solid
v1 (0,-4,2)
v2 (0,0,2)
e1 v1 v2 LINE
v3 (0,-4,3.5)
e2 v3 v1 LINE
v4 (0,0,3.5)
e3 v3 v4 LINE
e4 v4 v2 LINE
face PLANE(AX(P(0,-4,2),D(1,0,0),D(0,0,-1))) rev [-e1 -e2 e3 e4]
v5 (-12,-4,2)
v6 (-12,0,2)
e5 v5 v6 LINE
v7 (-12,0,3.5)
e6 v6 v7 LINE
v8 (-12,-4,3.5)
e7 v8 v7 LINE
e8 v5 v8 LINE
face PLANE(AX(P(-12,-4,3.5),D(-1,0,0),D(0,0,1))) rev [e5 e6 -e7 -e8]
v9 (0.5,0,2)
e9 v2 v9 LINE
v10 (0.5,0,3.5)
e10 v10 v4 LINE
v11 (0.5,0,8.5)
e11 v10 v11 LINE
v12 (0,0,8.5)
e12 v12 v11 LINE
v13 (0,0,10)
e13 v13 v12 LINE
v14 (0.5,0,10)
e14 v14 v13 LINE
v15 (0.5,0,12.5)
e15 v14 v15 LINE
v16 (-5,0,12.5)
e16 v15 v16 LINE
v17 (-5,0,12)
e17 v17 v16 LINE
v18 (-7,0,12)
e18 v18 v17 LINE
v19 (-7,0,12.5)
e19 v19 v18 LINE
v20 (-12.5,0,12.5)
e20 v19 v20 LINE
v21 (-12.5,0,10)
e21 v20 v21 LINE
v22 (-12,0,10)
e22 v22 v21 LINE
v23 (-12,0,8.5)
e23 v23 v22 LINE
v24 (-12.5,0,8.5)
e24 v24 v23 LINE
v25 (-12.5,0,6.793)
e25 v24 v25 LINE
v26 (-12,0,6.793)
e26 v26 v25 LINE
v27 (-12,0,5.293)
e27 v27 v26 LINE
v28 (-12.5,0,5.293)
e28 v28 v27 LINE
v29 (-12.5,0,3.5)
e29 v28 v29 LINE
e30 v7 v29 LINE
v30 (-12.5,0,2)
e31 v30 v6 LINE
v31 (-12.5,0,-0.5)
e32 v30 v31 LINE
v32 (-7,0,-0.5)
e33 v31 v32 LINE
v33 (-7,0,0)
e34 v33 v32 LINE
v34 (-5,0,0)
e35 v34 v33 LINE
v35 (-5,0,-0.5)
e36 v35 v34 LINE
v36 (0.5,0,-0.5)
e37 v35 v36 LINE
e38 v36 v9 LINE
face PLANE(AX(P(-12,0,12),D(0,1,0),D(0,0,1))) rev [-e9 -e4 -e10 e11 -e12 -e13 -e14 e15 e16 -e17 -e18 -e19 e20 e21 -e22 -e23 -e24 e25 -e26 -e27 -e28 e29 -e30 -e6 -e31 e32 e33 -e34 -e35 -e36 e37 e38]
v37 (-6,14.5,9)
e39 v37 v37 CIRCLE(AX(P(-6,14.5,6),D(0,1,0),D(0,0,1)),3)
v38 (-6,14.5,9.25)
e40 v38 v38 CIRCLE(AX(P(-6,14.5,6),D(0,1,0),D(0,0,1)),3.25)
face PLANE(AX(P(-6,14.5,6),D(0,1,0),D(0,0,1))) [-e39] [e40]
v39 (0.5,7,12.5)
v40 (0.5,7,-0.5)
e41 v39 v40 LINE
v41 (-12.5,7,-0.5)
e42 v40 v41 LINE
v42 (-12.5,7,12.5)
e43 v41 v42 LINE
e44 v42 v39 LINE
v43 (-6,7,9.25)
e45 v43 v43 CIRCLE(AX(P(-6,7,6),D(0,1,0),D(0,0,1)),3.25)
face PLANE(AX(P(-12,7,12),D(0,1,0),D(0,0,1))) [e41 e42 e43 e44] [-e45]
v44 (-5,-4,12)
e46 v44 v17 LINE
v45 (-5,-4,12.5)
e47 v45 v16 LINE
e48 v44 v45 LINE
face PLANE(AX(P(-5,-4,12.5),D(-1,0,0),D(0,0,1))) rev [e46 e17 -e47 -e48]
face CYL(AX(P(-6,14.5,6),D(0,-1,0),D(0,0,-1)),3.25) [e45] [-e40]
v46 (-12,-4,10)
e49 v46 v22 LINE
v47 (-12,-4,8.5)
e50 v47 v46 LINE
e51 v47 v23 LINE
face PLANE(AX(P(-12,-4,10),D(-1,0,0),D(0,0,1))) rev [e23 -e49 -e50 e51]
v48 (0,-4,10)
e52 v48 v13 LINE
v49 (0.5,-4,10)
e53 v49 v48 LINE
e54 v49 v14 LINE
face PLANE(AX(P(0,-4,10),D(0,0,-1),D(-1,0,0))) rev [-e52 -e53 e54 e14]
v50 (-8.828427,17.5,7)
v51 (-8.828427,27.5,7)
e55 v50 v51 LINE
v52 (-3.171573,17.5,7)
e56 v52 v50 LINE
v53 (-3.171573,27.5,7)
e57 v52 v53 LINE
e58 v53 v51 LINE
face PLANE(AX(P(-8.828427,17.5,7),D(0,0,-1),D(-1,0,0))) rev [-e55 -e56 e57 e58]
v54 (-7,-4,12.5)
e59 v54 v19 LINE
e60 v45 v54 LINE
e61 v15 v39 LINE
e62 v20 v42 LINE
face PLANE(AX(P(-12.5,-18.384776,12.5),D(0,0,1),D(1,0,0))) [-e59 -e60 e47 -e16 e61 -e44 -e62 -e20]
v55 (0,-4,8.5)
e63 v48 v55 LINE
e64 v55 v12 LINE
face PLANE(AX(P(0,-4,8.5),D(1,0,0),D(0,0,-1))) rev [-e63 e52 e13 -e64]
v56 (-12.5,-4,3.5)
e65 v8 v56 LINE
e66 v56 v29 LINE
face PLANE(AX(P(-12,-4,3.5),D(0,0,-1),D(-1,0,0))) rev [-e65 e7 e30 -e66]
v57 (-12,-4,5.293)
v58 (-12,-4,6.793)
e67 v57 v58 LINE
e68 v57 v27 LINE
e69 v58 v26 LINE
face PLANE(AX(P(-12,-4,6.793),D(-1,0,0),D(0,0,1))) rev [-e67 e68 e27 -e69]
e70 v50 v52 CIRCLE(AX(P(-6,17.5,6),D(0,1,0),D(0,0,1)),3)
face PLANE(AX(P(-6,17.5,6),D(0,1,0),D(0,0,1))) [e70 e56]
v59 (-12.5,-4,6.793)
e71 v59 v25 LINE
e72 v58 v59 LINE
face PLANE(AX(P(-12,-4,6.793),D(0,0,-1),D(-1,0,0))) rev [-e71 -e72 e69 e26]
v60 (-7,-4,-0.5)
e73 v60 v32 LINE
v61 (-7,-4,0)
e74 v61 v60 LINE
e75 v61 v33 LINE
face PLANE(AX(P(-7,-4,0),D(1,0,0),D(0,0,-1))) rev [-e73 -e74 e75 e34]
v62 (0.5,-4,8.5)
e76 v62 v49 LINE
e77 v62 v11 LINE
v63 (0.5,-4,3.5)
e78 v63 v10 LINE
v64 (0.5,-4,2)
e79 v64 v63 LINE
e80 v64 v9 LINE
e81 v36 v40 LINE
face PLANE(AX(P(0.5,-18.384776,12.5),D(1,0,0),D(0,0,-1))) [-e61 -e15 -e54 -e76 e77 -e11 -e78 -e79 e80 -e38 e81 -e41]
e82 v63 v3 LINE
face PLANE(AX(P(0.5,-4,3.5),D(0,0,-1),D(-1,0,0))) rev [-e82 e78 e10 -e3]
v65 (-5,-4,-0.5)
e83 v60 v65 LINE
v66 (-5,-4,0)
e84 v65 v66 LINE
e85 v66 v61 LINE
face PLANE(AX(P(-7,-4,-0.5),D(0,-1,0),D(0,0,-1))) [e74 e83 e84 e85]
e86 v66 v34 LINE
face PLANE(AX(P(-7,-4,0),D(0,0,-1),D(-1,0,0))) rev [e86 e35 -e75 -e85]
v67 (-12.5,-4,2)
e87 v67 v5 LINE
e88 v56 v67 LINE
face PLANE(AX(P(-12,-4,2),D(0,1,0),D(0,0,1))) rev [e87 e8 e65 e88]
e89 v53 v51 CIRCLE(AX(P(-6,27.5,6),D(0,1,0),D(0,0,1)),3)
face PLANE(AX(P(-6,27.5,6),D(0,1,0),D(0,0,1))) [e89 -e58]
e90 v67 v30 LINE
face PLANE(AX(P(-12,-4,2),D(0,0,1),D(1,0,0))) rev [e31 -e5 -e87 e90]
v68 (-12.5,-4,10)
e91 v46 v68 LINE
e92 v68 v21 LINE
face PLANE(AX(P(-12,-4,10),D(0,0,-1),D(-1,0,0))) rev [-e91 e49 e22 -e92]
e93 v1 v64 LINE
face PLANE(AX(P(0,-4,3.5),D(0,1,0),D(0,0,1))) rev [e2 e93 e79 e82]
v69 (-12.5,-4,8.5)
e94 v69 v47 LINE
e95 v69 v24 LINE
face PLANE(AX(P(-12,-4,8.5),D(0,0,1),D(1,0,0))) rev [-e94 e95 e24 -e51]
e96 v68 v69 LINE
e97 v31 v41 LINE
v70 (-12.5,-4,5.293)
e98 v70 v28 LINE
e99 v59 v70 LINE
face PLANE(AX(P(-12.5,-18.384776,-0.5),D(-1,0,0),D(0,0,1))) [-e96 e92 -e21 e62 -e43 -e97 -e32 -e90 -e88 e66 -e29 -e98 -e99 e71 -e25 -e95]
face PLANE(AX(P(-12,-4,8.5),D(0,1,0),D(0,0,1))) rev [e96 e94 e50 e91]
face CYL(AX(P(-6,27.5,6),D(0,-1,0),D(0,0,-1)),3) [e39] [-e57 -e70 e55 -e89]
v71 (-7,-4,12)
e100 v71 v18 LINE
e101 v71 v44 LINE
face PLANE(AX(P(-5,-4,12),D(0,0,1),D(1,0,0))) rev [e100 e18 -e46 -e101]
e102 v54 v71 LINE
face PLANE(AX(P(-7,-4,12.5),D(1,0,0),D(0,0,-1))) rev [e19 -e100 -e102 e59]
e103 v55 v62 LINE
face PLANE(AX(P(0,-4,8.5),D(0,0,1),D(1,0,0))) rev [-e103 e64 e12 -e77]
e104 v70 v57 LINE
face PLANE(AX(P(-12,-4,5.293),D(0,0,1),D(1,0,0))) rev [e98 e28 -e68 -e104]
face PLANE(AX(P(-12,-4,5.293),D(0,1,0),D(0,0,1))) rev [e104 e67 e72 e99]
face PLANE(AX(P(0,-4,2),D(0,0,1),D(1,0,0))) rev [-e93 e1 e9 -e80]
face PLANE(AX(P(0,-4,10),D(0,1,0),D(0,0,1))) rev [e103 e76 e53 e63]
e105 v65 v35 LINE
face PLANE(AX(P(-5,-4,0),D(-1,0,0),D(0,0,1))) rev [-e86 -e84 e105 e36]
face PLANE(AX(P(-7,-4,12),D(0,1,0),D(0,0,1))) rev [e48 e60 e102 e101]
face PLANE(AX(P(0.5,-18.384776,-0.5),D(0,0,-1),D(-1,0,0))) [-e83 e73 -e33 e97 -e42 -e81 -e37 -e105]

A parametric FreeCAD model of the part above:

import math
import FreeCAD as App
import Part
import Sketcher


def add_polygon(sketch, points):
    """Adds a closed chain of lines whose ends are joined by coincident constraints."""
    first, n = sketch.GeometryCount, len(points)
    for a, b in zip(points, points[1:] + points[:1]):
        sketch.addGeometry(Part.LineSegment(App.Vector(*a, 0), App.Vector(*b, 0)), False)
    for i in range(n):
        sketch.addConstraint(Sketcher.Constraint("Coincident", first + i, 2, first + (i + 1) % n, 1))

doc = App.newDocument("Part")
body = doc.addObject("PartDesign::Body", "Body")

# Sketch on XZ plane
sketch1 = body.newObject("Sketcher::SketchObject", "Sketch")
sketch1.AttachmentSupport = (doc.getObject("XZ_Plane"), [""])
sketch1.MapMode = "FlatFace"
add_polygon(sketch1, [(-12, 0), (-12, 12), (0, 12), (0, 0)])  # lines 0-3
sketch1.addConstraint(Sketcher.Constraint("Vertical", 0))
sketch1.addConstraint(Sketcher.Constraint("Horizontal", 1))
sketch1.addConstraint(Sketcher.Constraint("Vertical", 2))
sketch1.addConstraint(Sketcher.Constraint("Horizontal", 3))
sketch1.addConstraint(Sketcher.Constraint("Coincident", 2, 2, -1, 1))
sketch1.addConstraint(Sketcher.Constraint("Equal", 3, 0))
sketch1.addConstraint(Sketcher.Constraint("DistanceX", 1, 1, 1, 2, 12.0))
pad1 = body.newObject("PartDesign::Pad", "Pad")
pad1.Profile = sketch1
pad1.Length = 7
pad1.Reversed = True
body2 = doc.addObject("PartDesign::Body", "Body001")

# Sketch on XZ plane
sketch2 = body2.newObject("Sketcher::SketchObject", "Sketch001")
sketch2.AttachmentSupport = (doc.getObject("XZ_Plane001"), [""])
sketch2.MapMode = "FlatFace"
add_polygon(sketch2, [(-12.5, 10), (-12.5, 8.5), (-12, 8.5), (-12, 10)])  # lines 0-3
sketch2.addConstraint(Sketcher.Constraint("Vertical", 0))
sketch2.addConstraint(Sketcher.Constraint("Horizontal", 1))
sketch2.addConstraint(Sketcher.Constraint("Vertical", 2))
sketch2.addConstraint(Sketcher.Constraint("Horizontal", 3))
sketch2.addConstraint(Sketcher.Constraint("DistanceX", 1, 1, 1, 2, 0.5))
sketch2.addConstraint(Sketcher.Constraint("DistanceY", 0, 2, 0, 1, 1.5))
sketch2.addConstraint(Sketcher.Constraint("DistanceX", 1, 2, -1, 1, 12.0))
sketch2.addConstraint(Sketcher.Constraint("DistanceY", -1, 1, 2, 2, 10.0))
pad2 = body2.newObject("PartDesign::Pad", "Pad001")
pad2.Profile = sketch2
pad2.Length = 4
body3 = doc.addObject("PartDesign::Body", "Body002")

# Sketch on XZ plane
sketch3 = body3.newObject("Sketcher::SketchObject", "Sketch002")
sketch3.AttachmentSupport = (doc.getObject("XZ_Plane002"), [""])
sketch3.MapMode = "FlatFace"
add_polygon(sketch3, [(-7, 0), (-7, -0.5), (-5, -0.5), (-5, 0)])  # lines 0-3
sketch3.addConstraint(Sketcher.Constraint("Vertical", 0))
sketch3.addConstraint(Sketcher.Constraint("Horizontal", 1))
sketch3.addConstraint(Sketcher.Constraint("Vertical", 2))
sketch3.addConstraint(Sketcher.Constraint("Horizontal", 3))
sketch3.addConstraint(Sketcher.Constraint("PointOnObject", 2, 2, -1))
sketch3.addConstraint(Sketcher.Constraint("DistanceX", 1, 1, 1, 2, 2.0))
sketch3.addConstraint(Sketcher.Constraint("DistanceY", 0, 2, 0, 1, 0.5))
sketch3.addConstraint(Sketcher.Constraint("DistanceX", 0, 2, -1, 1, 7.0))
pad3 = body3.newObject("PartDesign::Pad", "Pad002")
pad3.Profile = sketch3
pad3.Length = 4
body4 = doc.addObject("PartDesign::Body", "Body003")

# Sketch on XZ plane
sketch4 = body4.newObject("Sketcher::SketchObject", "Sketch003")
sketch4.AttachmentSupport = (doc.getObject("XZ_Plane003"), [""])
sketch4.MapMode = "FlatFace"
add_polygon(sketch4, [(0, 3.5), (0, 2), (0.5, 2), (0.5, 3.5)])  # lines 0-3
sketch4.addConstraint(Sketcher.Constraint("Vertical", 0))
sketch4.addConstraint(Sketcher.Constraint("Horizontal", 1))
sketch4.addConstraint(Sketcher.Constraint("Vertical", 2))
sketch4.addConstraint(Sketcher.Constraint("Horizontal", 3))
sketch4.addConstraint(Sketcher.Constraint("PointOnObject", 0, 2, -2))
sketch4.addConstraint(Sketcher.Constraint("DistanceX", 1, 1, 1, 2, 0.5))
sketch4.addConstraint(Sketcher.Constraint("DistanceY", 0, 2, 0, 1, 1.5))
sketch4.addConstraint(Sketcher.Constraint("DistanceY", -1, 1, 0, 2, 2.0))
pad4 = body4.newObject("PartDesign::Pad", "Pad003")
pad4.Profile = sketch4
pad4.Length = 4
body5 = doc.addObject("PartDesign::Body", "Body004")

# Sketch on XZ plane
sketch5 = body5.newObject("Sketcher::SketchObject", "Sketch004")
sketch5.AttachmentSupport = (doc.getObject("XZ_Plane004"), [""])
sketch5.MapMode = "FlatFace"
add_polygon(sketch5, [(-7, 12.5), (-7, 12), (-5, 12), (-5, 12.5)])  # lines 0-3
sketch5.addConstraint(Sketcher.Constraint("Vertical", 0))
sketch5.addConstraint(Sketcher.Constraint("Horizontal", 1))
sketch5.addConstraint(Sketcher.Constraint("Vertical", 2))
sketch5.addConstraint(Sketcher.Constraint("Horizontal", 3))
sketch5.addConstraint(Sketcher.Constraint("DistanceX", 1, 1, 1, 2, 2.0))
sketch5.addConstraint(Sketcher.Constraint("DistanceY", 0, 2, 0, 1, 0.5))
sketch5.addConstraint(Sketcher.Constraint("DistanceX", 0, 2, -1, 1, 7.0))
sketch5.addConstraint(Sketcher.Constraint("DistanceY", -1, 1, 0, 2, 12.0))
pad5 = body5.newObject("PartDesign::Pad", "Pad004")
pad5.Profile = sketch5
pad5.Length = 4
body6 = doc.addObject("PartDesign::Body", "Body005")

# Sketch on XZ plane
sketch6 = body6.newObject("Sketcher::SketchObject", "Sketch005")
sketch6.AttachmentSupport = (doc.getObject("XZ_Plane005"), [""])
sketch6.MapMode = "FlatFace"
add_polygon(sketch6, [(-12.5, 6.8), (-12.5, 5.3), (-12, 5.3), (-12, 6.8)])  # lines 0-3
sketch6.addConstraint(Sketcher.Constraint("Vertical", 0))
sketch6.addConstraint(Sketcher.Constraint("Horizontal", 1))
sketch6.addConstraint(Sketcher.Constraint("Vertical", 2))
sketch6.addConstraint(Sketcher.Constraint("Horizontal", 3))
sketch6.addConstraint(Sketcher.Constraint("DistanceX", 1, 1, 1, 2, 0.5))
sketch6.addConstraint(Sketcher.Constraint("DistanceY", 0, 2, 0, 1, 1.5))
sketch6.addConstraint(Sketcher.Constraint("DistanceX", 1, 2, -1, 1, 12.0))
sketch6.addConstraint(Sketcher.Constraint("DistanceY", -1, 1, 0, 2, 5.293))
pad6 = body6.newObject("PartDesign::Pad", "Pad005")
pad6.Profile = sketch6
pad6.Length = 4
body7 = doc.addObject("PartDesign::Body", "Body006")

# Sketch on XZ plane
sketch7 = body7.newObject("Sketcher::SketchObject", "Sketch006")
sketch7.AttachmentSupport = (doc.getObject("XZ_Plane006"), [""])
sketch7.MapMode = "FlatFace"
add_polygon(sketch7, [(-12.5, 3.5), (-12.5, 2), (-12, 2), (-12, 3.5)])  # lines 0-3
sketch7.addConstraint(Sketcher.Constraint("Vertical", 0))
sketch7.addConstraint(Sketcher.Constraint("Horizontal", 1))
sketch7.addConstraint(Sketcher.Constraint("Vertical", 2))
sketch7.addConstraint(Sketcher.Constraint("Horizontal", 3))
sketch7.addConstraint(Sketcher.Constraint("DistanceX", 1, 1, 1, 2, 0.5))
sketch7.addConstraint(Sketcher.Constraint("DistanceY", 0, 2, 0, 1, 1.5))
sketch7.addConstraint(Sketcher.Constraint("DistanceY", -1, 1, 0, 2, 2.0))
sketch7.addConstraint(Sketcher.Constraint("DistanceX", 1, 2, -1, 1, 12.0))
pad7 = body7.newObject("PartDesign::Pad", "Pad006")
pad7.Profile = sketch7
pad7.Length = 4
body8 = doc.addObject("PartDesign::Body", "Body007")

# Sketch on XZ plane
sketch8 = body8.newObject("Sketcher::SketchObject", "Sketch007")
sketch8.AttachmentSupport = (doc.getObject("XZ_Plane007"), [""])
sketch8.MapMode = "FlatFace"
add_polygon(sketch8, [(0, 10), (0, 8.5), (0.5, 8.5), (0.5, 10)])  # lines 0-3
sketch8.addConstraint(Sketcher.Constraint("Vertical", 0))
sketch8.addConstraint(Sketcher.Constraint("Horizontal", 1))
sketch8.addConstraint(Sketcher.Constraint("Vertical", 2))
sketch8.addConstraint(Sketcher.Constraint("Horizontal", 3))
sketch8.addConstraint(Sketcher.Constraint("PointOnObject", 0, 2, -2))
sketch8.addConstraint(Sketcher.Constraint("DistanceX", 1, 1, 1, 2, 0.5))
sketch8.addConstraint(Sketcher.Constraint("DistanceY", 0, 2, 0, 1, 1.5))
sketch8.addConstraint(Sketcher.Constraint("DistanceY", -1, 1, 2, 2, 10.0))
pad8 = body8.newObject("PartDesign::Pad", "Pad007")
pad8.Profile = sketch8
pad8.Length = 4
body.AllowCompound = True
doc.recompute()

boolean = body.newObject("PartDesign::Boolean", "Boolean")
boolean.Type = "Fuse"
boolean.addObjects([body2])
doc.recompute()

boolean2 = body.newObject("PartDesign::Boolean", "Boolean001")
boolean2.Type = "Fuse"
boolean2.addObjects([body3])
doc.recompute()

boolean3 = body.newObject("PartDesign::Boolean", "Boolean002")
boolean3.Type = "Fuse"
boolean3.addObjects([body4])
doc.recompute()

boolean4 = body.newObject("PartDesign::Boolean", "Boolean003")
boolean4.Type = "Fuse"
boolean4.addObjects([body5])
doc.recompute()

boolean5 = body.newObject("PartDesign::Boolean", "Boolean004")
boolean5.Type = "Fuse"
boolean5.addObjects([body6])
doc.recompute()

boolean6 = body.newObject("PartDesign::Boolean", "Boolean005")
boolean6.Type = "Fuse"
boolean6.addObjects([body7])
doc.recompute()

boolean7 = body.newObject("PartDesign::Boolean", "Boolean006")
boolean7.Type = "Fuse"
boolean7.addObjects([body8])

# Sketch on XZ plane
sketch9 = body.newObject("Sketcher::SketchObject", "Sketch008")
sketch9.AttachmentSupport = (doc.getObject("XZ_Plane"), [""])
sketch9.MapMode = "FlatFace"
sketch9.AttachmentOffset = App.Placement(App.Vector(0, 0, -7), App.Rotation())
add_polygon(sketch9, [(-12, 0), (-12, 12), (0, 12), (0, 0)])  # lines 0-3
add_polygon(sketch9, [(0, 12), (-12, 12), (-12, 0), (0, 0)])  # lines 4-7
sketch9.addConstraint(Sketcher.Constraint("Vertical", 0))
sketch9.addConstraint(Sketcher.Constraint("Horizontal", 1))
sketch9.addConstraint(Sketcher.Constraint("Vertical", 2))
sketch9.addConstraint(Sketcher.Constraint("Horizontal", 3))
sketch9.addConstraint(Sketcher.Constraint("Horizontal", 4))
sketch9.addConstraint(Sketcher.Constraint("Vertical", 5))
sketch9.addConstraint(Sketcher.Constraint("Horizontal", 6))
sketch9.addConstraint(Sketcher.Constraint("Vertical", 7))
sketch9.addConstraint(Sketcher.Constraint("Coincident", 6, 2, -1, 1))
sketch9.addConstraint(Sketcher.Constraint("Equal", 3, 0))
sketch9.addConstraint(Sketcher.Constraint("Equal", 6, 5))
sketch9.addConstraint(Sketcher.Constraint("DistanceX", 1, 1, 1, 2, 13.0))
sketch9.addConstraint(Sketcher.Constraint("DistanceX", 4, 2, 4, 1, 12.0))
sketch9.addConstraint(Sketcher.Constraint("DistanceX", 0, 2, -1, 1, 12.5))
sketch9.addConstraint(Sketcher.Constraint("DistanceY", -1, 1, 0, 2, 12.5))
pad9 = body.newObject("PartDesign::Pad", "Pad008")
pad9.Profile = sketch9
pad9.Length = 7

# Sketch on XZ plane
sketch10 = body.newObject("Sketcher::SketchObject", "Sketch009")
sketch10.AttachmentSupport = (doc.getObject("XZ_Plane"), [""])
sketch10.MapMode = "FlatFace"
sketch10.AttachmentOffset = App.Placement(App.Vector(0, 0, -7), App.Rotation())
sketch10.addGeometry(Part.Circle(App.Vector(-6, 6, 0), App.Vector(0, 0, 1), 3.2), False)
sketch10.addConstraint(Sketcher.Constraint("Diameter", 0, 6.5))
sketch10.addConstraint(Sketcher.Constraint("DistanceX", 0, 3, -1, 1, 6.0))
sketch10.addConstraint(Sketcher.Constraint("DistanceY", -1, 1, 0, 3, 6.0))
pad10 = body.newObject("PartDesign::Pad", "Pad009")
pad10.Profile = sketch10
pad10.Length = 7.5
pad10.Reversed = True

# Sketch on XZ plane
sketch11 = body.newObject("Sketcher::SketchObject", "Sketch010")
sketch11.AttachmentSupport = (doc.getObject("XZ_Plane"), [""])
sketch11.MapMode = "FlatFace"
sketch11.AttachmentOffset = App.Placement(App.Vector(0, 0, -14.5), App.Rotation())
sketch11.addGeometry(Part.Circle(App.Vector(-6, 6, 0), App.Vector(0, 0, 1), 3), False)
sketch11.addConstraint(Sketcher.Constraint("Diameter", 0, 6.0))
sketch11.addConstraint(Sketcher.Constraint("DistanceX", 0, 3, -1, 1, 6.0))
sketch11.addConstraint(Sketcher.Constraint("DistanceY", -1, 1, 0, 3, 6.0))
pad11 = body.newObject("PartDesign::Pad", "Pad010")
pad11.Profile = sketch11
pad11.Length = 13
pad11.Reversed = True

# Sketch on XZ plane
sketch12 = body.newObject("Sketcher::SketchObject", "Sketch011")
sketch12.AttachmentSupport = (doc.getObject("XZ_Plane"), [""])
sketch12.MapMode = "FlatFace"
sketch12.AttachmentOffset = App.Placement(App.Vector(0, 0, -17.5), App.Rotation())
sketch12.addGeometry(Part.LineSegment(App.Vector(-3.2, 7, 0), App.Vector(-8.8, 7, 0)), False)
sketch12.addGeometry(Part.ArcOfCircle(Part.Circle(App.Vector(-6, 6, 0), App.Vector(0, 0, 1), 3), math.radians(19), math.radians(161)), False)
sketch12.addConstraint(Sketcher.Constraint("Coincident", 0, 1, 1, 1))
sketch12.addConstraint(Sketcher.Constraint("Coincident", 1, 2, 0, 2))
sketch12.addConstraint(Sketcher.Constraint("Horizontal", 0))
sketch12.addConstraint(Sketcher.Constraint("Radius", 1, 3.0))
sketch12.addConstraint(Sketcher.Constraint("DistanceX", 1, 3, -1, 1, 6.0))
sketch12.addConstraint(Sketcher.Constraint("DistanceY", -1, 1, 1, 3, 6.0))
sketch12.addConstraint(Sketcher.Constraint("DistanceY", -1, 1, 0, 1, 7.0))
pocket1 = body.newObject("PartDesign::Pocket", "Pocket")
pocket1.Profile = sketch12
pocket1.Length = 10

doc.recompute()
